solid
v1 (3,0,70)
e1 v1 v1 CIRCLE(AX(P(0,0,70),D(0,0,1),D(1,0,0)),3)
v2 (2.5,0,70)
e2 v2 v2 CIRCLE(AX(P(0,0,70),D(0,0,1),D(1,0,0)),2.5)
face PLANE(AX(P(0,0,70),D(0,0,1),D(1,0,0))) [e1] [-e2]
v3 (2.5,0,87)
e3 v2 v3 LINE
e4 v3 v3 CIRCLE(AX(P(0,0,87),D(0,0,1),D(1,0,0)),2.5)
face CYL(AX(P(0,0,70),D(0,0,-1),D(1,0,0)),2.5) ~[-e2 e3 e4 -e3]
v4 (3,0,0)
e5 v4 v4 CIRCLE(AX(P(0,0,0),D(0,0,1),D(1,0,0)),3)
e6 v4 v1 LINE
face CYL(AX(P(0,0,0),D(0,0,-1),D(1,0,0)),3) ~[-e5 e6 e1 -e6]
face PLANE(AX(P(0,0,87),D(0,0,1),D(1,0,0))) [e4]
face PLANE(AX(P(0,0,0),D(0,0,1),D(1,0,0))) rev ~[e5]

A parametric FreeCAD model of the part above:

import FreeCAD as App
import Part
import Sketcher
Q = App.Units.Quantity

doc = App.newDocument("Part")
body = doc.addObject("PartDesign::Body", "Body")

# Sketch on XY plane
sketch1 = body.newObject("Sketcher::SketchObject", "Sketch")
sketch1.AttachmentSupport = (doc.getObject("XY_Plane"), [""])
sketch1.MapMode = "FlatFace"
sketch1.addGeometry(Part.Circle(App.Vector(0, 0, 0), App.Vector(0, 0, 1), 3), False)
sketch1.addConstraint([
    Sketcher.Constraint("Coincident", 0, 3, -1, 1),
    Sketcher.Constraint("Diameter", 0, Q("6 mm")),
])
pad1 = body.newObject("PartDesign::Pad", "Pad")
pad1.Profile = sketch1
pad1.Length = 70

# Sketch on XY plane
sketch2 = body.newObject("Sketcher::SketchObject", "Sketch001")
sketch2.AttachmentSupport = (doc.getObject("XY_Plane"), [""])
sketch2.MapMode = "FlatFace"
sketch2.AttachmentOffset = App.Placement(App.Vector(0, 0, 70), App.Rotation())
sketch2.addGeometry(Part.Circle(App.Vector(0, 0, 0), App.Vector(0, 0, 1), 2.5), False)
sketch2.addConstraint([
    Sketcher.Constraint("Coincident", 0, 3, -1, 1),
    Sketcher.Constraint("Diameter", 0, Q("5 mm")),
])
pad2 = body.newObject("PartDesign::Pad", "Pad001")
pad2.Profile = sketch2
pad2.Length = 17

doc.recompute()
